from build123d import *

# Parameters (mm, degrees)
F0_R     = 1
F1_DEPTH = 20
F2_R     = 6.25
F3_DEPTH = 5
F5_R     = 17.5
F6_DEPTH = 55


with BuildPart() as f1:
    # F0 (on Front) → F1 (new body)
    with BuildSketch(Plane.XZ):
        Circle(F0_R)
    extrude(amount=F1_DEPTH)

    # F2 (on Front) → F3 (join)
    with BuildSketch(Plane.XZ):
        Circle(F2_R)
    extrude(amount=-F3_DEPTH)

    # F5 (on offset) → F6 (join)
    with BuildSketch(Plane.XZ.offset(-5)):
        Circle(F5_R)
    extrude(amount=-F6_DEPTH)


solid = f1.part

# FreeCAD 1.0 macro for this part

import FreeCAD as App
import Part
import Sketcher

V = App.Vector
Q = App.Units.Quantity

doc = App.newDocument("Part")
body = doc.addObject("PartDesign::Body", "Body")

# Sketch on XZ plane
sketch1 = body.newObject("Sketcher::SketchObject", "Sketch")
sketch1.AttachmentSupport = (doc.getObject("XZ_Plane"), [""])
sketch1.MapMode = "FlatFace"
sketch1.addGeometry(Part.Circle(V(0, 0, 0), V(0, 0, 1), 1), False)
sketch1.addConstraint([
    Sketcher.Constraint("Coincident", 0, 3, -1, 1),
    Sketcher.Constraint("Diameter", 0, Q("2 mm")),
])
pad1 = body.newObject("PartDesign::Pad", "Pad")
pad1.Profile = sketch1
pad1.Length = 20

# Sketch on XZ plane
sketch2 = body.newObject("Sketcher::SketchObject", "Sketch001")
sketch2.AttachmentSupport = (doc.getObject("XZ_Plane"), [""])
sketch2.MapMode = "FlatFace"
sketch2.addGeometry(Part.Circle(V(0, 0, 0), V(0, 0, 1), 6), False)
sketch2.addConstraint([
    Sketcher.Constraint("Coincident", 0, 3, -1, 1),
    Sketcher.Constraint("Diameter", 0, Q("12.5 mm")),
])
pad2 = body.newObject("PartDesign::Pad", "Pad001")
pad2.Profile = sketch2
pad2.Length = 5
pad2.Reversed = True

# Sketch on XZ plane
sketch3 = body.newObject("Sketcher::SketchObject", "Sketch002")
sketch3.AttachmentSupport = (doc.getObject("XZ_Plane"), [""])
sketch3.MapMode = "FlatFace"
sketch3.AttachmentOffset = App.Placement(V(0, 0, -5), App.Rotation())
sketch3.addGeometry(Part.Circle(V(0, 0, 0), V(0, 0, 1), 18), False)
sketch3.addConstraint([
    Sketcher.Constraint("Coincident", 0, 3, -1, 1),
    Sketcher.Constraint("Diameter", 0, Q("35 mm")),
])
pad3 = body.newObject("PartDesign::Pad", "Pad002")
pad3.Profile = sketch3
pad3.Length = 55
pad3.Reversed = True

doc.recompute()
